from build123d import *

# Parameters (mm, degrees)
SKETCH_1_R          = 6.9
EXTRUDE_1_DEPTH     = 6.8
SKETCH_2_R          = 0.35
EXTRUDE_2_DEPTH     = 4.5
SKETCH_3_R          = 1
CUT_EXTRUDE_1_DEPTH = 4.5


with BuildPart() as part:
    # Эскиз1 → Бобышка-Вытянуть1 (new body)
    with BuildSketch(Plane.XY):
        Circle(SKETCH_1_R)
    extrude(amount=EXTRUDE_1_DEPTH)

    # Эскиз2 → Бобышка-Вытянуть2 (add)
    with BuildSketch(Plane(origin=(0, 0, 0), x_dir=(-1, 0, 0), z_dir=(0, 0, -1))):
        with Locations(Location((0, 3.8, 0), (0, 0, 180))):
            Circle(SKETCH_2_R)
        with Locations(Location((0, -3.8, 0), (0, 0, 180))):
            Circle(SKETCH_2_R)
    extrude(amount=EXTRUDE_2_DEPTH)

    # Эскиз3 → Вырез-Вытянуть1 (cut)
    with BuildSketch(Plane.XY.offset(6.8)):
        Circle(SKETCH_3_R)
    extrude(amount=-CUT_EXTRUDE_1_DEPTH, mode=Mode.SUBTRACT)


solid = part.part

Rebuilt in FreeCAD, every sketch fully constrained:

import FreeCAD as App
import Part
import Sketcher

doc = App.newDocument("Part")
body = doc.addObject("PartDesign::Body", "Body")

# Sketch on XY plane
sketch1 = body.newObject("Sketcher::SketchObject", "Sketch")
sketch1.AttachmentSupport = (doc.getObject("XY_Plane"), [""])
sketch1.MapMode = "FlatFace"
sketch1.addGeometry(Part.Circle(App.Vector(0, 0, 0), App.Vector(0, 0, 1), 7), False)
sketch1.addConstraint(Sketcher.Constraint("Coincident", 0, 3, -1, 1))
sketch1.addConstraint(Sketcher.Constraint("Diameter", 0, 13.8))
pad1 = body.newObject("PartDesign::Pad", "Pad")
pad1.Profile = sketch1
pad1.Length = 6.8

# Sketch on XY plane
sketch2 = body.newObject("Sketcher::SketchObject", "Sketch001")
sketch2.AttachmentSupport = (doc.getObject("XY_Plane"), [""])
sketch2.MapMode = "FlatFace"
sketch2.addGeometry(Part.Circle(App.Vector(0, 3.8, 0), App.Vector(0, 0, 1), 0.35), False)
sketch2.addGeometry(Part.Circle(App.Vector(0, -3.8, 0), App.Vector(0, 0, 1), 0.35), False)
sketch2.addConstraint(Sketcher.Constraint("Equal", 0, 1))
sketch2.addConstraint(Sketcher.Constraint("Symmetric", 0, 3, 1, 3, -1, 1))
sketch2.addConstraint(Sketcher.Constraint("PointOnObject", 0, 3, -2))
sketch2.addConstraint(Sketcher.Constraint("Diameter", 0, 0.7))
sketch2.addConstraint(Sketcher.Constraint("DistanceY", -1, 1, 0, 3, 3.8))
pad2 = body.newObject("PartDesign::Pad", "Pad001")
pad2.Profile = sketch2
pad2.Length = 4.5
pad2.Reversed = True

# Sketch on XY plane
sketch3 = body.newObject("Sketcher::SketchObject", "Sketch002")
sketch3.AttachmentSupport = (doc.getObject("XY_Plane"), [""])
sketch3.MapMode = "FlatFace"
sketch3.AttachmentOffset = App.Placement(App.Vector(0, 0, 6.8), App.Rotation())
sketch3.addGeometry(Part.Circle(App.Vector(0, 0, 0), App.Vector(0, 0, 1), 1), False)
sketch3.addConstraint(Sketcher.Constraint("Coincident", 0, 3, -1, 1))
sketch3.addConstraint(Sketcher.Constraint("Diameter", 0, 2.0))
pocket1 = body.newObject("PartDesign::Pocket", "Pocket")
pocket1.Profile = sketch3
pocket1.Length = 4.5

doc.recompute()
